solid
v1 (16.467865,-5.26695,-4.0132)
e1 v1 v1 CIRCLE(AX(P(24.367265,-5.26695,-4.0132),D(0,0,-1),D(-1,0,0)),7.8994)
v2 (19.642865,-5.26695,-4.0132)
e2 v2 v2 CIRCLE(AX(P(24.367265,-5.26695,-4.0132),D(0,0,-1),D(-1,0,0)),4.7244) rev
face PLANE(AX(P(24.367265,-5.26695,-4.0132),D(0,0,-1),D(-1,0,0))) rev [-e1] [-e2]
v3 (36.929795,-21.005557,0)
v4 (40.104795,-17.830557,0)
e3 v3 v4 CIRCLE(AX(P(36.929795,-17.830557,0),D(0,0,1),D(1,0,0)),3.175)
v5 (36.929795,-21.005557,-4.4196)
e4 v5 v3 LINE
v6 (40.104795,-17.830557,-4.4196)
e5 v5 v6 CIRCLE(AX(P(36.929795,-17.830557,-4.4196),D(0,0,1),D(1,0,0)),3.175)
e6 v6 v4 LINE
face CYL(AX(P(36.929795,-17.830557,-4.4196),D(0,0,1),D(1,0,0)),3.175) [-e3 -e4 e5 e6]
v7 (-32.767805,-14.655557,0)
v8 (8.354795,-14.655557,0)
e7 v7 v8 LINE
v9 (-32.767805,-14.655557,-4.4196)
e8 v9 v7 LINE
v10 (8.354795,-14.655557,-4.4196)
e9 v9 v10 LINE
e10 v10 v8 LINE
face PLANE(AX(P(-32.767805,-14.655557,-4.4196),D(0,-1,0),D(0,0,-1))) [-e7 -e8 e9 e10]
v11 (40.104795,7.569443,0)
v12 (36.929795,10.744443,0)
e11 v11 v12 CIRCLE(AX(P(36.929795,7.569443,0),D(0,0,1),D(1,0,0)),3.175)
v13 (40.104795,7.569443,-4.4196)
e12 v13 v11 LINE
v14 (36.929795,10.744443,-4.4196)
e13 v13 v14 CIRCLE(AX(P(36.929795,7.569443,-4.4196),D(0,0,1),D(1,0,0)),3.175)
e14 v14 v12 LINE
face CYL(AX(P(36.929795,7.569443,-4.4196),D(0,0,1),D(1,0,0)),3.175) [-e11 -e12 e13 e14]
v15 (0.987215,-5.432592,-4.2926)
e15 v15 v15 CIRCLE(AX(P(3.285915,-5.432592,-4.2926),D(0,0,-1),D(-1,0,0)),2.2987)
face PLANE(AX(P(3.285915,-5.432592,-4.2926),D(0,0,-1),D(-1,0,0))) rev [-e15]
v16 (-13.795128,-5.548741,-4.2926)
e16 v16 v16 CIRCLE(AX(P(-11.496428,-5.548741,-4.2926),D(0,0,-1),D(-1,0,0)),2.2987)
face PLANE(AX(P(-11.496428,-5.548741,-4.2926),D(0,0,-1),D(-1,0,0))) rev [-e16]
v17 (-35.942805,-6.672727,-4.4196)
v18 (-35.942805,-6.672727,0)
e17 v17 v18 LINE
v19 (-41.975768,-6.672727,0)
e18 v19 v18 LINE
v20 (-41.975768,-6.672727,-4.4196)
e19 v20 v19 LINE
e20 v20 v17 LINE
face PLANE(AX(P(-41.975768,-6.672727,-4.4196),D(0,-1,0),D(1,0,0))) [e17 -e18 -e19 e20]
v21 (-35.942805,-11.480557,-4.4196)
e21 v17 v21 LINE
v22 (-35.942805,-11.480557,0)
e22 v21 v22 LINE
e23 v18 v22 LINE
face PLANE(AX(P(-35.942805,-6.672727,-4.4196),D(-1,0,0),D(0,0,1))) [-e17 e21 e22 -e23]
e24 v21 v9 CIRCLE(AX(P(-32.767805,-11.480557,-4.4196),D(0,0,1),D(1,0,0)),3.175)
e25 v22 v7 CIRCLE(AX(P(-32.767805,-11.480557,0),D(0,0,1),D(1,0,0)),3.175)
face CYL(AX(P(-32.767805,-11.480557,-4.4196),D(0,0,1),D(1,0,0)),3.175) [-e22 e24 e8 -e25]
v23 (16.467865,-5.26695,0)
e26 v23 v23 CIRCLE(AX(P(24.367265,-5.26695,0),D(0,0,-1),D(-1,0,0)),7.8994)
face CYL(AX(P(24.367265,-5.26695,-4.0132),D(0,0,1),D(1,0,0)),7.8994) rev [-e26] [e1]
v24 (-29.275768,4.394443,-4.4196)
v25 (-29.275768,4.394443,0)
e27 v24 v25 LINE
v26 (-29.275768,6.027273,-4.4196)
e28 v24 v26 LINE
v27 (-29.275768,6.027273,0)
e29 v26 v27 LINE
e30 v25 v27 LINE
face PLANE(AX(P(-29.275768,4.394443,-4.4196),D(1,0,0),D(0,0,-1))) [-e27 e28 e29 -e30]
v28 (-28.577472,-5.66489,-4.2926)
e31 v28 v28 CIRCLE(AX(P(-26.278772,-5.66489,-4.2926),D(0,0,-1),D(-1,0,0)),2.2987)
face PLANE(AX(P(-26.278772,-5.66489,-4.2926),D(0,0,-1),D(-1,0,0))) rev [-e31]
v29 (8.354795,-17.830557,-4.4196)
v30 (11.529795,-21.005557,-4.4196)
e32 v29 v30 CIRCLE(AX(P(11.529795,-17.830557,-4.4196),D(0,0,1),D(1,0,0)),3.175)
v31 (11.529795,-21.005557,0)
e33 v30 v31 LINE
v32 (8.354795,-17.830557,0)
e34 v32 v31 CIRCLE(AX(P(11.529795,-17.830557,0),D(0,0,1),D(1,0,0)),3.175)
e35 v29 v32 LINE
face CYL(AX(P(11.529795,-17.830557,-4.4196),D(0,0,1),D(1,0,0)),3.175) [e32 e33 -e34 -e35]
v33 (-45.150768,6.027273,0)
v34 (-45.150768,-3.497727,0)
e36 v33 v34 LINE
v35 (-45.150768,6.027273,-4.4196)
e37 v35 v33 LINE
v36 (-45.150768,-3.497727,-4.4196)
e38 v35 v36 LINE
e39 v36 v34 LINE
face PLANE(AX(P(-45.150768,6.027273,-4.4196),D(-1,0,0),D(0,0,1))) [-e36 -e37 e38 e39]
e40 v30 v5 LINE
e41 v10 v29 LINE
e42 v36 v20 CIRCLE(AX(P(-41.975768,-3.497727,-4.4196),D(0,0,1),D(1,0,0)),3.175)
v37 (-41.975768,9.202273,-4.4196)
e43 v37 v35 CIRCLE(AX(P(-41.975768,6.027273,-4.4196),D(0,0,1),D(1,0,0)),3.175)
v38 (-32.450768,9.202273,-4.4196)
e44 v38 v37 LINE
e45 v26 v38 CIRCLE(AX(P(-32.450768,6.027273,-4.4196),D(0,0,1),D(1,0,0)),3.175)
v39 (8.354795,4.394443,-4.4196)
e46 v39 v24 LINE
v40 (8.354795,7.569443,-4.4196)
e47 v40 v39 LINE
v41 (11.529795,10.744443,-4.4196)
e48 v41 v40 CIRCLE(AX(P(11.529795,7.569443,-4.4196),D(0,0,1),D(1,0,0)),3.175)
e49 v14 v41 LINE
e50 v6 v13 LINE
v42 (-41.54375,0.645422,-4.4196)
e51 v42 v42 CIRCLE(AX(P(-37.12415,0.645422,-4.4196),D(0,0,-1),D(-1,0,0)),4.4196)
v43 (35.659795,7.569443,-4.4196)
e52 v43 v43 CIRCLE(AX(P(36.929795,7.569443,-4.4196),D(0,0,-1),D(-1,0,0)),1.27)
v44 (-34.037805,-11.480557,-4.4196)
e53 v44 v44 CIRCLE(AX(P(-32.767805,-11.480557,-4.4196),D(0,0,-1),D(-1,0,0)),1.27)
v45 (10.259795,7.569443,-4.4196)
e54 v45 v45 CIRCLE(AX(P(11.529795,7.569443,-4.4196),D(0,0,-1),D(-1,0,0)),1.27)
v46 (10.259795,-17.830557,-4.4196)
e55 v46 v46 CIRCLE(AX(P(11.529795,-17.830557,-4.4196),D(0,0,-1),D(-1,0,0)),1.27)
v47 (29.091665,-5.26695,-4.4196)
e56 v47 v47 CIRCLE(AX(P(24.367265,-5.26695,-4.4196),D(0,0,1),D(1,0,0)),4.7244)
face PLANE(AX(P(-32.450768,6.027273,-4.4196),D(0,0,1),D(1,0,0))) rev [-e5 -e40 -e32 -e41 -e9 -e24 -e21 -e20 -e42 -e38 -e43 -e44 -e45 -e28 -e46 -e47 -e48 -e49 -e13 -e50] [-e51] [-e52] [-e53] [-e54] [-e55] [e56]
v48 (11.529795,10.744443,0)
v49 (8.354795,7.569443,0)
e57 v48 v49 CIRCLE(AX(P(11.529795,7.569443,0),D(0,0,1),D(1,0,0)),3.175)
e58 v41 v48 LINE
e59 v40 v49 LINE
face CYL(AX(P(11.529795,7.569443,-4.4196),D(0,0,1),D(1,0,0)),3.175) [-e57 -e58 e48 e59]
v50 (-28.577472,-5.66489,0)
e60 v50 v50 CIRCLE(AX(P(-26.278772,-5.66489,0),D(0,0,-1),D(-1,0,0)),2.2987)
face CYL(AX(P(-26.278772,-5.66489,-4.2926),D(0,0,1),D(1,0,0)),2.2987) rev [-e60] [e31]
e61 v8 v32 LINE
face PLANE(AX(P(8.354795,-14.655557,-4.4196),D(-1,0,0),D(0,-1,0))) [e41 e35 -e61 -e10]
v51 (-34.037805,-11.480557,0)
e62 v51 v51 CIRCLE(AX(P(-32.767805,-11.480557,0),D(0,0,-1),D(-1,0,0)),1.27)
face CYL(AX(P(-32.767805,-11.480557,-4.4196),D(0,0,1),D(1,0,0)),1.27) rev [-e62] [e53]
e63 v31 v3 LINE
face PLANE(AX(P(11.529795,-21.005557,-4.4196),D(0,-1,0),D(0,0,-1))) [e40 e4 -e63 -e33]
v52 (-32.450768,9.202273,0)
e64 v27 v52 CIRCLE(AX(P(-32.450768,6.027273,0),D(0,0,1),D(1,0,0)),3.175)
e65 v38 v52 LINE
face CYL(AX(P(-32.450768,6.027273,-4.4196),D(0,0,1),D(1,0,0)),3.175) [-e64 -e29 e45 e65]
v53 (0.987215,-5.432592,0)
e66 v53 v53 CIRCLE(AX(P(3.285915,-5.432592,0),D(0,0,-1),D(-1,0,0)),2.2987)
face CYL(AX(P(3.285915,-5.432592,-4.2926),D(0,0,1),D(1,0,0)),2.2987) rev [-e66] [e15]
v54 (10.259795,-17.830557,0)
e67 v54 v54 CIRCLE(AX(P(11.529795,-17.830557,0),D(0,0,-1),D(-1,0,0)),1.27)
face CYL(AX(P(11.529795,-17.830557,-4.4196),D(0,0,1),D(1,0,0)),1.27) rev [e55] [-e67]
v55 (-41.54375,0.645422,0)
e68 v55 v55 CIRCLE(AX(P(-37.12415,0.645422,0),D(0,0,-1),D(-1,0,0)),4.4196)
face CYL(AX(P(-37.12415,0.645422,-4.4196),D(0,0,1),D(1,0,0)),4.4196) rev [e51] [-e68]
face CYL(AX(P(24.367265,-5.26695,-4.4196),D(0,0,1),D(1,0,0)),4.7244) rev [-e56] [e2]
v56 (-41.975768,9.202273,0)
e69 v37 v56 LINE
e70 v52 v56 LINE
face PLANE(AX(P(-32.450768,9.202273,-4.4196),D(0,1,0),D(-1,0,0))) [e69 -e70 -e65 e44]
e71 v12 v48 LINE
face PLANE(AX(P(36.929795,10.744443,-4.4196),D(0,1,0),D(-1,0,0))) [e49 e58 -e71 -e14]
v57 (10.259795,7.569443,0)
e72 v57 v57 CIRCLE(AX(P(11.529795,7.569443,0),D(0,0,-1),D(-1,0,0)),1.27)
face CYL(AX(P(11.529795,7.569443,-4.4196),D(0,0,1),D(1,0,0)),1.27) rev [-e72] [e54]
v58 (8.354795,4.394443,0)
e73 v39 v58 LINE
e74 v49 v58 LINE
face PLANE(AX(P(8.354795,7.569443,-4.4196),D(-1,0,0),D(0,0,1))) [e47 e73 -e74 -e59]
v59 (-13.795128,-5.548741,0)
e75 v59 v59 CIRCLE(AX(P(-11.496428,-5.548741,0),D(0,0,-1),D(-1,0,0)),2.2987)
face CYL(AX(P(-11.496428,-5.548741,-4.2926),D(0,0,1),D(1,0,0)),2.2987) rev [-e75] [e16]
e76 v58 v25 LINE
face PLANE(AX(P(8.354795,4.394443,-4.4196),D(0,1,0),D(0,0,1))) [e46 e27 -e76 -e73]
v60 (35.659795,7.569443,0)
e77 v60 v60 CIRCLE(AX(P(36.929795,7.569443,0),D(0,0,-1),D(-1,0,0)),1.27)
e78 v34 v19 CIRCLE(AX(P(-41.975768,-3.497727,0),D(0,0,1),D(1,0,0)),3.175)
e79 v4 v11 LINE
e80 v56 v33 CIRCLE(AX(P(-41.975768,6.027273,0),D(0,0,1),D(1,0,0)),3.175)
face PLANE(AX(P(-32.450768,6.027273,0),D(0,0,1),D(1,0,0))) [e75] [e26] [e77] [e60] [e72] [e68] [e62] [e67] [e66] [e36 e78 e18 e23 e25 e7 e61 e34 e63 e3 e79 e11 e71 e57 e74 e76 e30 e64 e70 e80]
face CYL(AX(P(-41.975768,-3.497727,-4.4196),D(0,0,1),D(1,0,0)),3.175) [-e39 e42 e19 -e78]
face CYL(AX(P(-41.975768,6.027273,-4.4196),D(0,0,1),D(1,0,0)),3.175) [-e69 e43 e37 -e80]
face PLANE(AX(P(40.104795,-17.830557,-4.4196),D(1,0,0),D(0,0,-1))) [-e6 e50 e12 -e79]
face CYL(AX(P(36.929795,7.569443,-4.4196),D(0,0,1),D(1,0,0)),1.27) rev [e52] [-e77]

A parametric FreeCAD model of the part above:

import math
import FreeCAD as App
import Part
import Sketcher
from FreeCAD import Vector
Q = App.Units.Quantity

doc = App.newDocument("Part")
params = doc.addObject("Spreadsheet::Sheet", "Params")
for row, (alias, value) in enumerate([
    ("sketch1_width", "1 in"),
    ("sketch1_diameter", "0.372 in"),
    ("sketch1_radius", "0.125 in"),
    ("sketch1_width2", "1.619 in"),
    ("pad1_length", "0.174 in"),
    ("sketch2_diameter", "0.622 in"),
    ("pocket1_length", "0.158 in"),
    ("sketch3_diameter", "0.181 in"),
    ("pocket2_length", "0.169 in"),
    ("sketch4_diameter", "0.1 in"),
    ("sketch4_diameter2", "0.348 in"),
    ("pocket3_length", "0.174 in"),
], start=1):
    params.set(f"A{row}", alias)
    params.set(f"B{row}", "=" + value)
    params.setAlias(f"B{row}", alias)

body = doc.addObject("PartDesign::Body", "Body")

sketch1 = body.newObject("Sketcher::SketchObject", "Sketch")
sketch1.AttachmentSupport = (doc.getObject("XY_Plane"), [""])
sketch1.MapMode = "FlatFace"
sketch1.addGeometry(Part.LineSegment(Vector(-32.450768, 9.202273, 0), Vector(-41.975768, 9.202273, 0)), False)
sketch1.addGeometry(Part.ArcOfCircle(Part.Circle(Vector(-41.975768, 6.027273, 0), Vector(0, 0, 1), 3.175), math.radians(90), math.radians(180)), False)
sketch1.addGeometry(Part.LineSegment(Vector(-45.150768, 6.027273, 0), Vector(-45.150768, -3.497727, 0)), False)
sketch1.addGeometry(Part.ArcOfCircle(Part.Circle(Vector(-41.975768, -3.497727, 0), Vector(0, 0, 1), 3.175), math.radians(-180), math.radians(-90)), False)
sketch1.addGeometry(Part.LineSegment(Vector(-41.975768, -6.672727, 0), Vector(-35.942805, -6.672727, 0)), False)
sketch1.addGeometry(Part.LineSegment(Vector(-35.942805, -6.672727, 0), Vector(-35.942805, -11.480557, 0)), False)
sketch1.addGeometry(Part.ArcOfCircle(Part.Circle(Vector(-32.767805, -11.480557, 0), Vector(0, 0, 1), 3.175), math.radians(-180), math.radians(-90)), False)
sketch1.addGeometry(Part.LineSegment(Vector(-32.767805, -14.655557, 0), Vector(8.354795, -14.655557, 0)), False)
sketch1.addGeometry(Part.LineSegment(Vector(8.354795, -14.655557, 0), Vector(8.354795, -17.830557, 0)), False)
sketch1.addGeometry(Part.ArcOfCircle(Part.Circle(Vector(11.529795, -17.830557, 0), Vector(0, 0, 1), 3.175), math.radians(-180), math.radians(-90)), False)
sketch1.addGeometry(Part.LineSegment(Vector(11.529795, -21.005557, 0), Vector(36.929795, -21.005557, 0)), False)
sketch1.addGeometry(Part.ArcOfCircle(Part.Circle(Vector(36.929795, -17.830557, 0), Vector(0, 0, 1), 3.175), math.radians(-90), math.radians(0)), False)
sketch1.addGeometry(Part.LineSegment(Vector(40.104795, -17.830557, 0), Vector(40.104795, 7.569443, 0)), False)
sketch1.addGeometry(Part.ArcOfCircle(Part.Circle(Vector(36.929795, 7.569443, 0), Vector(0, 0, 1), 3.175), math.radians(0), math.radians(90)), False)
sketch1.addGeometry(Part.LineSegment(Vector(36.929795, 10.744443, 0), Vector(11.529795, 10.744443, 0)), False)
sketch1.addGeometry(Part.ArcOfCircle(Part.Circle(Vector(11.529795, 7.569443, 0), Vector(0, 0, 1), 3.175), math.radians(90), math.radians(180)), False)
sketch1.addGeometry(Part.LineSegment(Vector(8.354795, 7.569443, 0), Vector(8.354795, 4.394443, 0)), False)
sketch1.addGeometry(Part.LineSegment(Vector(8.354795, 4.394443, 0), Vector(-29.275768, 4.394443, 0)), False)
sketch1.addGeometry(Part.LineSegment(Vector(-29.275768, 4.394443, 0), Vector(-29.275768, 6.027273, 0)), False)
sketch1.addGeometry(Part.ArcOfCircle(Part.Circle(Vector(-32.450768, 6.027273, 0), Vector(0, 0, 1), 3.175), math.radians(0), math.radians(90)), False)
sketch1.addGeometry(Part.Circle(Vector(24.367265, -5.26695, 0), Vector(0, 0, 1), 4.7244), False)
sketch1.addConstraint(Sketcher.Constraint("Tangent", 0, 2, 1, 1))
sketch1.addConstraint(Sketcher.Constraint("Tangent", 1, 2, 2, 1))
sketch1.addConstraint(Sketcher.Constraint("Tangent", 2, 2, 3, 1))
sketch1.addConstraint(Sketcher.Constraint("Tangent", 3, 2, 4, 1))
sketch1.addConstraint(Sketcher.Constraint("Coincident", 4, 2, 5, 1))
sketch1.addConstraint(Sketcher.Constraint("Tangent", 5, 2, 6, 1))
sketch1.addConstraint(Sketcher.Constraint("Tangent", 6, 2, 7, 1))
sketch1.addConstraint(Sketcher.Constraint("Coincident", 7, 2, 8, 1))
sketch1.addConstraint(Sketcher.Constraint("Tangent", 8, 2, 9, 1))
sketch1.addConstraint(Sketcher.Constraint("Tangent", 9, 2, 10, 1))
sketch1.addConstraint(Sketcher.Constraint("Tangent", 10, 2, 11, 1))
sketch1.addConstraint(Sketcher.Constraint("Tangent", 11, 2, 12, 1))
sketch1.addConstraint(Sketcher.Constraint("Tangent", 12, 2, 13, 1))
sketch1.addConstraint(Sketcher.Constraint("Tangent", 13, 2, 14, 1))
sketch1.addConstraint(Sketcher.Constraint("Tangent", 14, 2, 15, 1))
sketch1.addConstraint(Sketcher.Constraint("Tangent", 15, 2, 16, 1))
sketch1.addConstraint(Sketcher.Constraint("Coincident", 16, 2, 17, 1))
sketch1.addConstraint(Sketcher.Constraint("Coincident", 17, 2, 18, 1))
sketch1.addConstraint(Sketcher.Constraint("Tangent", 18, 2, 19, 1))
sketch1.addConstraint(Sketcher.Constraint("Tangent", 19, 2, 0, 1))
sketch1.addConstraint(Sketcher.Constraint("Horizontal", 0))
sketch1.addConstraint(Sketcher.Constraint("Vertical", 2))
sketch1.addConstraint(Sketcher.Constraint("Horizontal", 4))
sketch1.addConstraint(Sketcher.Constraint("Vertical", 5))
sketch1.addConstraint(Sketcher.Constraint("Horizontal", 7))
sketch1.addConstraint(Sketcher.Constraint("Vertical", 8))
sketch1.addConstraint(Sketcher.Constraint("Horizontal", 10))
sketch1.addConstraint(Sketcher.Constraint("Vertical", 12))
sketch1.addConstraint(Sketcher.Constraint("Horizontal", 14))
sketch1.addConstraint(Sketcher.Constraint("Vertical", 16))
sketch1.addConstraint(Sketcher.Constraint("Horizontal", 17))
sketch1.addConstraint(Sketcher.Constraint("Vertical", 18))
sketch1.addConstraint(Sketcher.Constraint("Equal", 1, 3))
sketch1.addConstraint(Sketcher.Constraint("Equal", 3, 6))
sketch1.addConstraint(Sketcher.Constraint("Equal", 6, 9))
sketch1.addConstraint(Sketcher.Constraint("Equal", 9, 11))
sketch1.addConstraint(Sketcher.Constraint("Equal", 11, 13))
sketch1.addConstraint(Sketcher.Constraint("Equal", 13, 15))
sketch1.addConstraint(Sketcher.Constraint("Equal", 15, 19))
sketch1.addConstraint(Sketcher.Constraint("Vertical", 9, 3, 15, 3))
sketch1.addConstraint(Sketcher.Constraint("Equal", 0, 2))
sketch1.addConstraint(Sketcher.Constraint("Equal", 14, 12))
sketch1.addConstraint(Sketcher.Constraint("Equal", 8, 16))
sketch1.addConstraint(Sketcher.Constraint("DistanceX", 10, 1, 10, 2, Q("1 in")))
sketch1.addConstraint(Sketcher.Constraint("Diameter", 20, Q("0.372 in")))
sketch1.addConstraint(Sketcher.Constraint("Radius", 1, Q("0.125 in")))
sketch1.addConstraint(Sketcher.Constraint("DistanceY", 7, 2, 14, 2, Q("1 in")))
sketch1.addConstraint(Sketcher.Constraint("DistanceY", 3, 3, 0, 2, Q("0.5 in")))
sketch1.addConstraint(Sketcher.Constraint("DistanceX", 7, 1, 7, 2, Q("1.619 in")))
sketch1.addConstraint(Sketcher.Constraint("DistanceY", 5, 2, 5, 1, 4.80783))
sketch1.addConstraint(Sketcher.Constraint("DistanceX", 4, 1, 4, 2, 6.032963))
sketch1.addConstraint(Sketcher.Constraint("DistanceY", 20, 3, -1, 1, 5.26695))
sketch1.addConstraint(Sketcher.Constraint("DistanceX", 20, 3, 11, 3, 12.562531))
sketch1.addConstraint(Sketcher.Constraint("DistanceX", 1, 3, -1, 1, 41.975768))
sketch1.addConstraint(Sketcher.Constraint("DistanceY", -1, 1, 1, 3, 6.027273))
sketch1.setExpression("Constraints[43]", "Params.sketch1_width")
sketch1.setExpression("Constraints[44]", "Params.sketch1_diameter")
sketch1.setExpression("Constraints[45]", "Params.sketch1_radius")
sketch1.setExpression("Constraints[48]", "Params.sketch1_width2")
pad1 = body.newObject("PartDesign::Pad", "Pad")
pad1.Profile = sketch1
pad1.setExpression("Length", "Params.pad1_length")
pad1.Reversed = True

sketch2 = body.newObject("Sketcher::SketchObject", "Sketch001")
sketch2.AttachmentSupport = (doc.getObject("XY_Plane"), [""])
sketch2.MapMode = "FlatFace"
sketch2.addGeometry(Part.Circle(Vector(24.367265, -5.26695, 0), Vector(0, 0, 1), 7.8994), False)
sketch2.addConstraint(Sketcher.Constraint("Diameter", 0, Q("0.622 in")))
sketch2.addConstraint(Sketcher.Constraint("DistanceY", 0, 3, -1, 1, 5.26695))
sketch2.addConstraint(Sketcher.Constraint("DistanceX", -1, 1, 0, 3, 24.367265))
sketch2.setExpression("Constraints[0]", "Params.sketch2_diameter")
pocket1 = body.newObject("PartDesign::Pocket", "Pocket")
pocket1.Profile = sketch2
pocket1.setExpression("Length", "Params.pocket1_length")

sketch3 = body.newObject("Sketcher::SketchObject", "Sketch002")
sketch3.AttachmentSupport = (doc.getObject("XY_Plane"), [""])
sketch3.MapMode = "FlatFace"
sketch3.addGeometry(Part.Circle(Vector(-26.278772, -5.66489, 0), Vector(0, 0, 1), 2.2987), False)
sketch3.addGeometry(Part.Circle(Vector(-11.496428, -5.548741, 0), Vector(0, 0, 1), 2.2987), False)
sketch3.addGeometry(Part.Circle(Vector(3.285915, -5.432592, 0), Vector(0, 0, 1), 2.2987), False)
sketch3.addConstraint(Sketcher.Constraint("Equal", 0, 1))
sketch3.addConstraint(Sketcher.Constraint("Equal", 1, 2))
sketch3.addConstraint(Sketcher.Constraint("Diameter", 0, Q("0.181 in")))
sketch3.addConstraint(Sketcher.Constraint("DistanceX", 0, 3, -1, 1, 26.278772))
sketch3.addConstraint(Sketcher.Constraint("DistanceY", 0, 3, -1, 1, 5.66489))
sketch3.addConstraint(Sketcher.Constraint("DistanceX", 1, 3, -1, 1, 11.496428))
sketch3.addConstraint(Sketcher.Constraint("DistanceY", 1, 3, -1, 1, 5.548741))
sketch3.addConstraint(Sketcher.Constraint("DistanceY", 1, 3, 2, 3, 0.116149))
sketch3.addConstraint(Sketcher.Constraint("DistanceX", -1, 1, 2, 3, 3.285915))
sketch3.setExpression("Constraints[2]", "Params.sketch3_diameter")
pocket2 = body.newObject("PartDesign::Pocket", "Pocket001")
pocket2.Profile = sketch3
pocket2.setExpression("Length", "Params.pocket2_length")

sketch4 = body.newObject("Sketcher::SketchObject", "Sketch003")
sketch4.AttachmentSupport = (doc.getObject("XY_Plane"), [""])
sketch4.MapMode = "FlatFace"
sketch4.addGeometry(Part.Circle(Vector(-32.767805, -11.480557, 0), Vector(0, 0, 1), 1.27), False)
sketch4.addGeometry(Part.Circle(Vector(11.529795, -17.830557, 0), Vector(0, 0, 1), 1.27), False)
sketch4.addGeometry(Part.Circle(Vector(11.529795, 7.569443, 0), Vector(0, 0, 1), 1.27), False)
sketch4.addGeometry(Part.Circle(Vector(36.929795, 7.569443, 0), Vector(0, 0, 1), 1.27), False)
sketch4.addGeometry(Part.Circle(Vector(-37.12415, 0.645422, 0), Vector(0, 0, 1), 4.4196), False)
sketch4.addConstraint(Sketcher.Constraint("Equal", 0, 1))
sketch4.addConstraint(Sketcher.Constraint("Equal", 1, 2))
sketch4.addConstraint(Sketcher.Constraint("Equal", 2, 3))
sketch4.addConstraint(Sketcher.Constraint("Horizontal", 2, 3, 3, 3))
sketch4.addConstraint(Sketcher.Constraint("Vertical", 1, 3, 2, 3))
sketch4.addConstraint(Sketcher.Constraint("Diameter", 0, Q("0.1 in")))
sketch4.addConstraint(Sketcher.Constraint("Diameter", 4, Q("0.348 in")))
sketch4.addConstraint(Sketcher.Constraint("DistanceY", 1, 3, 2, 3, Q("1 in")))
sketch4.addConstraint(Sketcher.Constraint("DistanceX", 2, 3, 3, 3, Q("1 in")))
sketch4.addConstraint(Sketcher.Constraint("DistanceY", 1, 3, 0, 3, Q("0.25 in")))
sketch4.addConstraint(Sketcher.Constraint("DistanceX", 0, 3, 1, 3, Q("1.744 in")))
sketch4.addConstraint(Sketcher.Constraint("DistanceX", 4, 3, -1, 1, 37.12415))
sketch4.addConstraint(Sketcher.Constraint("DistanceY", -1, 1, 4, 3, 0.645422))
sketch4.addConstraint(Sketcher.Constraint("DistanceY", 0, 3, 4, 3, 12.125979))
sketch4.addConstraint(Sketcher.Constraint("DistanceX", 0, 3, -1, 1, 32.767805))
sketch4.setExpression("Constraints[5]", "Params.sketch4_diameter")
sketch4.setExpression("Constraints[6]", "Params.sketch4_diameter2")
pocket3 = body.newObject("PartDesign::Pocket", "Pocket002")
pocket3.Profile = sketch4
pocket3.setExpression("Length", "Params.pocket3_length")

doc.recompute()
